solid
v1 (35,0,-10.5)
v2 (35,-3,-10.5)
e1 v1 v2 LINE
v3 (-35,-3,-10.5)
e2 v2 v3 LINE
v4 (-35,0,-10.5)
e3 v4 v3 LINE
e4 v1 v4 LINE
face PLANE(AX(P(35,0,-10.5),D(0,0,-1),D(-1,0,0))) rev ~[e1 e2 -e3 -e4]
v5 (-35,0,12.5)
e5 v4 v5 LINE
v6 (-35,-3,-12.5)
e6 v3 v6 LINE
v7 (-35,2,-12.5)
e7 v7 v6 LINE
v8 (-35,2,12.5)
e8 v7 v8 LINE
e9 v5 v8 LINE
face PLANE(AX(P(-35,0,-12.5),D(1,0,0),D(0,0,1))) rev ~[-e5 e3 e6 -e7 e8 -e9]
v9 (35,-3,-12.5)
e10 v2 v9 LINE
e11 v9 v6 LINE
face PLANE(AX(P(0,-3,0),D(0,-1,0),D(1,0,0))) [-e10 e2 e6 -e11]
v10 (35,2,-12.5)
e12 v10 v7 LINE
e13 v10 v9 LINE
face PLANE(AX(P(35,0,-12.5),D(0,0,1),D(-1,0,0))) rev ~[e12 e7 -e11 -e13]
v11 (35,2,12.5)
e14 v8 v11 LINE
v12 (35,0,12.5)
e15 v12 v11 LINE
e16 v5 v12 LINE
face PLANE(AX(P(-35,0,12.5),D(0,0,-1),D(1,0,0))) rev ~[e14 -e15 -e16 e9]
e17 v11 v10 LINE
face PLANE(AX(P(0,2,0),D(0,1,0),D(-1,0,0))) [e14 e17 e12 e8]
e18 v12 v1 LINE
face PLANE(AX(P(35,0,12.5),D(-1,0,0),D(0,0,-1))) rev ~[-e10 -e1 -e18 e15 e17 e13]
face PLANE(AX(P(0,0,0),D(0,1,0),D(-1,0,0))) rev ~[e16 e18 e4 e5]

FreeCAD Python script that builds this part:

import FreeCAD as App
import Part
import Sketcher

doc = App.newDocument("Part")
body = doc.addObject("PartDesign::Body", "Body")

# Sketch on XZ plane
sketch1 = doc.addObject("Sketcher::SketchObject", "Sketch")
body.addObject(sketch1)
sketch1.AttachmentSupport = (doc.XZ_Plane, [""])
sketch1.MapMode = "FlatFace"
sketch1.addGeometry([
    Part.LineSegment(App.Vector(-35, -12, 0), App.Vector(-35, 12, 0)),
    Part.LineSegment(App.Vector(-35, 12, 0), App.Vector(35, 12, 0)),
    Part.LineSegment(App.Vector(35, 12, 0), App.Vector(35, -12, 0)),
    Part.LineSegment(App.Vector(35, -12, 0), App.Vector(-35, -12, 0)),
], False)
sketch1.addConstraint([
    Sketcher.Constraint("Coincident", 0, 2, 1, 1),
    Sketcher.Constraint("Coincident", 1, 2, 2, 1),
    Sketcher.Constraint("Coincident", 2, 2, 3, 1),
    Sketcher.Constraint("Coincident", 3, 2, 0, 1),
    Sketcher.Constraint("Vertical", 0),
    Sketcher.Constraint("Horizontal", 1),
    Sketcher.Constraint("Vertical", 2),
    Sketcher.Constraint("Horizontal", 3),
    Sketcher.Constraint("Symmetric", 0, 2, 2, 2, -1, 1),
    Sketcher.Constraint("DistanceX", 1, 1, 1, 2, 70.0),
    Sketcher.Constraint("DistanceY", 0, 1, 0, 2, 25.0),
])
pad1 = doc.addObject("PartDesign::Pad", "Pad")
body.addObject(pad1)
pad1.Profile = sketch1
pad1.Length = 2
pad1.Reversed = True

# Sketch on XZ plane
sketch2 = doc.addObject("Sketcher::SketchObject", "Sketch001")
body.addObject(sketch2)
sketch2.AttachmentSupport = (doc.XZ_Plane, [""])
sketch2.MapMode = "FlatFace"
sketch2.addGeometry([
    Part.LineSegment(App.Vector(35, -12.5, 0), App.Vector(35, -10.5, 0)),
    Part.LineSegment(App.Vector(35, -10.5, 0), App.Vector(-35, -10.5, 0)),
    Part.LineSegment(App.Vector(-35, -10.5, 0), App.Vector(-35, -12.5, 0)),
    Part.LineSegment(App.Vector(-35, -12.5, 0), App.Vector(35, -12.5, 0)),
], False)
sketch2.addConstraint([
    Sketcher.Constraint("Coincident", 0, 2, 1, 1),
    Sketcher.Constraint("Coincident", 1, 2, 2, 1),
    Sketcher.Constraint("Coincident", 2, 2, 3, 1),
    Sketcher.Constraint("Coincident", 3, 2, 0, 1),
    Sketcher.Constraint("Vertical", 0),
    Sketcher.Constraint("Horizontal", 1),
    Sketcher.Constraint("Vertical", 2),
    Sketcher.Constraint("Horizontal", 3),
    Sketcher.Constraint("DistanceY", 0, 1, 0, 2, 2.0),
    Sketcher.Constraint("DistanceX", 1, 2, 1, 1, 70.0),
    Sketcher.Constraint("DistanceX", -1, 1, 0, 2, 35.0),
    Sketcher.Constraint("DistanceY", 0, 2, -1, 1, 10.5),
])
pad2 = doc.addObject("PartDesign::Pad", "Pad001")
body.addObject(pad2)
pad2.Profile = sketch2
pad2.Length = 3

doc.recompute()
